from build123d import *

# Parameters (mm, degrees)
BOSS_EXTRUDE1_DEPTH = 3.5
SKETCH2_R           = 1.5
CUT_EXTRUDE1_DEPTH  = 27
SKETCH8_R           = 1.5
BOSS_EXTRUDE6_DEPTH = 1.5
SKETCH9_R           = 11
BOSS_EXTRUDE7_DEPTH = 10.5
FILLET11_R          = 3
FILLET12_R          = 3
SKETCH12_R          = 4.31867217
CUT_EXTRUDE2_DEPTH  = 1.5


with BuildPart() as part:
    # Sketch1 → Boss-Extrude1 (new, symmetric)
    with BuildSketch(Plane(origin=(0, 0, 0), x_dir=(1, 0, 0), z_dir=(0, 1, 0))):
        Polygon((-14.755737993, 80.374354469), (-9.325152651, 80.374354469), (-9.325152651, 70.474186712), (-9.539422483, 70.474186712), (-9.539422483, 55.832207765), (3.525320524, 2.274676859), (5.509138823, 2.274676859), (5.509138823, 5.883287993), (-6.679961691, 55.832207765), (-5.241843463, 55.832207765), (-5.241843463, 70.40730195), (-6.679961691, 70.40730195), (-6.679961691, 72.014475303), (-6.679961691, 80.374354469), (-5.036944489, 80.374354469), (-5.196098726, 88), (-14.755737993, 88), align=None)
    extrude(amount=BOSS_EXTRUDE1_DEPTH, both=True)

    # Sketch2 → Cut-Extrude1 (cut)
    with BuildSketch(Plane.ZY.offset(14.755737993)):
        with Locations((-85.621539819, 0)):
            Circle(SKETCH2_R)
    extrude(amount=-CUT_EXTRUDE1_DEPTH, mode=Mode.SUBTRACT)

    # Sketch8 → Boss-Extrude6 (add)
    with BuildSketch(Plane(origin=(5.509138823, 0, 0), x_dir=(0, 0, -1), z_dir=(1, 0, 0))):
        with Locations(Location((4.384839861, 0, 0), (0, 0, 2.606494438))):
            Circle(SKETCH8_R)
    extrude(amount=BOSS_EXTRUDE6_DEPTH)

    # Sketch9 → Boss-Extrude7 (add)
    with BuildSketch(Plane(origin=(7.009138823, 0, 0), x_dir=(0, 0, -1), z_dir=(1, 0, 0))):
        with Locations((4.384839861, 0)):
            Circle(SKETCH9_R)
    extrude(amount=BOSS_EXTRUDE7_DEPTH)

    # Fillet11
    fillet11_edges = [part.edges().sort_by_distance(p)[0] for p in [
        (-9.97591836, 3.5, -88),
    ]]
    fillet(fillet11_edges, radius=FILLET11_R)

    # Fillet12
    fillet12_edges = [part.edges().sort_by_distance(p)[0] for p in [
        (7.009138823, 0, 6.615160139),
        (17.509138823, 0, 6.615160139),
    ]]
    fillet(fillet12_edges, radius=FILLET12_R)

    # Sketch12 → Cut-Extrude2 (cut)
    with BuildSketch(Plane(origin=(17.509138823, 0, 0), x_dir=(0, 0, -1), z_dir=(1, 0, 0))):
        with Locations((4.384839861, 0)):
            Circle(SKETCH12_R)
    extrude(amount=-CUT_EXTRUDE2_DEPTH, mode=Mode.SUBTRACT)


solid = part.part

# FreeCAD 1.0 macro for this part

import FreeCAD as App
import Part
import Sketcher
from FreeCAD import Vector
Q = App.Units.Quantity


def edges_at(feature, points):
    """Names of the edges that pass closest to the given points."""
    edges = feature.Shape.Edges
    near = lambda p: min(range(len(edges)), key=lambda i: edges[i].distToShape(Part.Vertex(*p))[0])
    return sorted({f"Edge{near(p) + 1}" for p in points})

doc = App.newDocument("Part")
params = doc.addObject("Spreadsheet::Sheet", "Params")
for row, (alias, value) in enumerate([
    ("pad1_length", "7 mm"),
    ("sketch2_diameter", "3 mm"),
    ("pocket1_length", "27 mm"),
    ("sketch3_diameter", "3 mm"),
    ("pad2_length", "1.5 mm"),
    ("sketch4_diameter", "22 mm"),
    ("pad3_length", "10.5 mm"),
    ("fillet_radius", "3 mm"),
    ("fillet2_radius", "3 mm"),
    ("pocket2_length", "1.5 mm"),
], start=1):
    params.set(f"A{row}", alias)
    params.set(f"B{row}", "=" + value)
    params.setAlias(f"B{row}", alias)

body = doc.addObject("PartDesign::Body", "Body")

sketch1 = doc.addObject("Sketcher::SketchObject", "Sketch")
body.addObject(sketch1)
sketch1.AttachmentSupport = (doc.XZ_Plane, [""])
sketch1.MapMode = "FlatFace"
sketch1.addGeometry([
    Part.LineSegment(Vector(-14.755738, -80.374354, 0), Vector(-9.325153, -80.374354, 0)),
    Part.LineSegment(Vector(-9.325153, -80.374354, 0), Vector(-9.325153, -70.474187, 0)),
    Part.LineSegment(Vector(-9.325153, -70.474187, 0), Vector(-9.539422, -70.474187, 0)),
    Part.LineSegment(Vector(-9.539422, -70.474187, 0), Vector(-9.539422, -55.832208, 0)),
    Part.LineSegment(Vector(-9.539422, -55.832208, 0), Vector(3.525321, -2.274677, 0)),
    Part.LineSegment(Vector(3.525321, -2.274677, 0), Vector(5.509139, -2.274677, 0)),
    Part.LineSegment(Vector(5.509139, -2.274677, 0), Vector(5.509139, -5.883288, 0)),
    Part.LineSegment(Vector(5.509139, -5.883288, 0), Vector(-6.679962, -55.832208, 0)),
    Part.LineSegment(Vector(-6.679962, -55.832208, 0), Vector(-5.241843, -55.832208, 0)),
    Part.LineSegment(Vector(-5.241843, -55.832208, 0), Vector(-5.241843, -70.407302, 0)),
    Part.LineSegment(Vector(-5.241843, -70.407302, 0), Vector(-6.679962, -70.407302, 0)),
    Part.LineSegment(Vector(-6.679962, -70.407302, 0), Vector(-6.679962, -80.374354, 0)),
    Part.LineSegment(Vector(-6.679962, -80.374354, 0), Vector(-5.036944, -80.374354, 0)),
    Part.LineSegment(Vector(-5.036944, -80.374354, 0), Vector(-5.196099, -88, 0)),
    Part.LineSegment(Vector(-5.196099, -88, 0), Vector(-14.755738, -88, 0)),
    Part.LineSegment(Vector(-14.755738, -88, 0), Vector(-14.755738, -80.374354, 0)),
], False)
sketch1.addConstraint([
    Sketcher.Constraint("Coincident", 0, 2, 1, 1),
    Sketcher.Constraint("Coincident", 1, 2, 2, 1),
    Sketcher.Constraint("Coincident", 2, 2, 3, 1),
    Sketcher.Constraint("Coincident", 3, 2, 4, 1),
    Sketcher.Constraint("Coincident", 4, 2, 5, 1),
    Sketcher.Constraint("Coincident", 5, 2, 6, 1),
    Sketcher.Constraint("Coincident", 6, 2, 7, 1),
    Sketcher.Constraint("Coincident", 7, 2, 8, 1),
    Sketcher.Constraint("Coincident", 8, 2, 9, 1),
    Sketcher.Constraint("Coincident", 9, 2, 10, 1),
    Sketcher.Constraint("Coincident", 10, 2, 11, 1),
    Sketcher.Constraint("Coincident", 11, 2, 12, 1),
    Sketcher.Constraint("Coincident", 12, 2, 13, 1),
    Sketcher.Constraint("Coincident", 13, 2, 14, 1),
    Sketcher.Constraint("Coincident", 14, 2, 15, 1),
    Sketcher.Constraint("Coincident", 15, 2, 0, 1),
    Sketcher.Constraint("Horizontal", 0),
    Sketcher.Constraint("Vertical", 1),
    Sketcher.Constraint("Horizontal", 2),
    Sketcher.Constraint("Vertical", 3),
    Sketcher.Constraint("Horizontal", 5),
    Sketcher.Constraint("Vertical", 6),
    Sketcher.Constraint("Horizontal", 8),
    Sketcher.Constraint("Vertical", 9),
    Sketcher.Constraint("Horizontal", 10),
    Sketcher.Constraint("Vertical", 11),
    Sketcher.Constraint("Horizontal", 12),
    Sketcher.Constraint("Horizontal", 14),
    Sketcher.Constraint("Vertical", 15),
    Sketcher.Constraint("Horizontal", 3, 2, 7, 2),
    Sketcher.Constraint("Horizontal", 0, 2, 11, 2),
    Sketcher.Constraint("Vertical", 7, 2, 10, 2),
    Sketcher.Constraint("DistanceY", 13, 2, -1, 1, Q("88 mm")),
    Sketcher.Constraint("DistanceX", 2, 2, 2, 1, Q("0.21427 mm")),
    Sketcher.Constraint("DistanceX", 5, 1, 5, 2, Q("1.983818 mm")),
    Sketcher.Constraint("DistanceX", 8, 1, 8, 2, Q("1.438118 mm")),
    Sketcher.Constraint("DistanceX", 14, 2, 14, 1, Q("9.559639 mm")),
    Sketcher.Constraint("DistanceY", 3, 1, 3, 2, Q("14.641979 mm")),
    Sketcher.Constraint("DistanceY", 6, 2, 6, 1, Q("3.608611 mm")),
    Sketcher.Constraint("DistanceY", 9, 2, -1, 1, Q("70.407302 mm")),
    Sketcher.Constraint("DistanceX", 13, 2, -1, 1, Q("5.196099 mm")),
    Sketcher.Constraint("DistanceY", 1, 2, 6, 2, Q("64.590899 mm")),
    Sketcher.Constraint("DistanceX", 7, 2, 6, 2, Q("12.189101 mm")),
    Sketcher.Constraint("DistanceX", 9, 2, 12, 2, Q("0.204899 mm")),
    Sketcher.Constraint("DistanceX", 0, 1, 0, 2, Q("5.430585 mm")),
    Sketcher.Constraint("DistanceY", 1, 1, 1, 2, Q("9.900168 mm")),
    Sketcher.Constraint("DistanceY", 9, 2, 9, 1, Q("14.575094 mm")),
    Sketcher.Constraint("DistanceX", -1, 1, 4, 2, Q("3.525321 mm")),
])
pad1 = doc.addObject("PartDesign::Pad", "Pad")
body.addObject(pad1)
pad1.Profile = sketch1
pad1.setExpression("Length", "Params.pad1_length")
pad1.Midplane = True

sketch2 = doc.addObject("Sketcher::SketchObject", "Sketch001")
body.addObject(sketch2)
sketch2.AttachmentSupport = (doc.YZ_Plane, [""])
sketch2.MapMode = "FlatFace"
sketch2.AttachmentOffset = App.Placement(Vector(0, 0, -14.755738), App.Rotation())
sketch2.addGeometry(Part.Circle(Vector(0, -85.62154, 0), Vector(0, 0, 1), 1.5), False)
sketch2.addConstraint([
    Sketcher.Constraint("PointOnObject", 0, 3, -2),
    Sketcher.Constraint("Diameter", 0, Q("3 mm")),
    Sketcher.Constraint("DistanceY", 0, 3, -1, 1, Q("85.62154 mm")),
])
sketch2.setExpression("Constraints[1]", "Params.sketch2_diameter")
pocket1 = doc.addObject("PartDesign::Pocket", "Pocket")
body.addObject(pocket1)
pocket1.Profile = sketch2
pocket1.setExpression("Length", "Params.pocket1_length")
pocket1.Reversed = True

sketch3 = doc.addObject("Sketcher::SketchObject", "Sketch002")
body.addObject(sketch3)
sketch3.AttachmentSupport = (doc.YZ_Plane, [""])
sketch3.MapMode = "FlatFace"
sketch3.AttachmentOffset = App.Placement(Vector(0, 0, 5.509139), App.Rotation())
sketch3.addGeometry(Part.Circle(Vector(0, -4.38484, 0), Vector(0, 0, 1), 1.5), False)
sketch3.addConstraint([
    Sketcher.Constraint("PointOnObject", 0, 3, -2),
    Sketcher.Constraint("Diameter", 0, Q("3 mm")),
    Sketcher.Constraint("DistanceY", 0, 3, -1, 1, Q("4.38484 mm")),
])
sketch3.setExpression("Constraints[1]", "Params.sketch3_diameter")
pad2 = doc.addObject("PartDesign::Pad", "Pad001")
body.addObject(pad2)
pad2.Profile = sketch3
pad2.setExpression("Length", "Params.pad2_length")

sketch4 = doc.addObject("Sketcher::SketchObject", "Sketch003")
body.addObject(sketch4)
sketch4.AttachmentSupport = (doc.YZ_Plane, [""])
sketch4.MapMode = "FlatFace"
sketch4.AttachmentOffset = App.Placement(Vector(0, 0, 7.009139), App.Rotation())
sketch4.addGeometry(Part.Circle(Vector(0, -4.38484, 0), Vector(0, 0, 1), 11), False)
sketch4.addConstraint([
    Sketcher.Constraint("PointOnObject", 0, 3, -2),
    Sketcher.Constraint("Diameter", 0, Q("22 mm")),
    Sketcher.Constraint("DistanceY", 0, 3, -1, 1, Q("4.38484 mm")),
])
sketch4.setExpression("Constraints[1]", "Params.sketch4_diameter")
pad3 = doc.addObject("PartDesign::Pad", "Pad002")
body.addObject(pad3)
pad3.Profile = sketch4
pad3.setExpression("Length", "Params.pad3_length")
doc.recompute()

fillet = doc.addObject("PartDesign::Fillet", "Fillet")
body.addObject(fillet)
fillet.Base = (pad3, edges_at(pad3, [(-9.976, 3.5, -88)]))
fillet.setExpression("Radius", "Params.fillet_radius")
doc.recompute()

fillet2 = doc.addObject("PartDesign::Fillet", "Fillet001")
body.addObject(fillet2)
fillet2.Base = (fillet, edges_at(fillet, [(7.009, 0, 6.615), (17.509, 0, 6.615)]))
fillet2.setExpression("Radius", "Params.fillet2_radius")

sketch5 = doc.addObject("Sketcher::SketchObject", "Sketch004")
body.addObject(sketch5)
sketch5.AttachmentSupport = (doc.YZ_Plane, [""])
sketch5.MapMode = "FlatFace"
sketch5.AttachmentOffset = App.Placement(Vector(0, 0, 17.509139), App.Rotation())
sketch5.addGeometry(Part.Circle(Vector(0, -4.38484, 0), Vector(0, 0, 1), 4.318672), False)
sketch5.addConstraint([
    Sketcher.Constraint("PointOnObject", 0, 3, -2),
    Sketcher.Constraint("Diameter", 0, Q("8.637344 mm")),
    Sketcher.Constraint("DistanceY", 0, 3, -1, 1, Q("4.38484 mm")),
])
pocket2 = doc.addObject("PartDesign::Pocket", "Pocket001")
body.addObject(pocket2)
pocket2.Profile = sketch5
pocket2.setExpression("Length", "Params.pocket2_length")

doc.recompute()
